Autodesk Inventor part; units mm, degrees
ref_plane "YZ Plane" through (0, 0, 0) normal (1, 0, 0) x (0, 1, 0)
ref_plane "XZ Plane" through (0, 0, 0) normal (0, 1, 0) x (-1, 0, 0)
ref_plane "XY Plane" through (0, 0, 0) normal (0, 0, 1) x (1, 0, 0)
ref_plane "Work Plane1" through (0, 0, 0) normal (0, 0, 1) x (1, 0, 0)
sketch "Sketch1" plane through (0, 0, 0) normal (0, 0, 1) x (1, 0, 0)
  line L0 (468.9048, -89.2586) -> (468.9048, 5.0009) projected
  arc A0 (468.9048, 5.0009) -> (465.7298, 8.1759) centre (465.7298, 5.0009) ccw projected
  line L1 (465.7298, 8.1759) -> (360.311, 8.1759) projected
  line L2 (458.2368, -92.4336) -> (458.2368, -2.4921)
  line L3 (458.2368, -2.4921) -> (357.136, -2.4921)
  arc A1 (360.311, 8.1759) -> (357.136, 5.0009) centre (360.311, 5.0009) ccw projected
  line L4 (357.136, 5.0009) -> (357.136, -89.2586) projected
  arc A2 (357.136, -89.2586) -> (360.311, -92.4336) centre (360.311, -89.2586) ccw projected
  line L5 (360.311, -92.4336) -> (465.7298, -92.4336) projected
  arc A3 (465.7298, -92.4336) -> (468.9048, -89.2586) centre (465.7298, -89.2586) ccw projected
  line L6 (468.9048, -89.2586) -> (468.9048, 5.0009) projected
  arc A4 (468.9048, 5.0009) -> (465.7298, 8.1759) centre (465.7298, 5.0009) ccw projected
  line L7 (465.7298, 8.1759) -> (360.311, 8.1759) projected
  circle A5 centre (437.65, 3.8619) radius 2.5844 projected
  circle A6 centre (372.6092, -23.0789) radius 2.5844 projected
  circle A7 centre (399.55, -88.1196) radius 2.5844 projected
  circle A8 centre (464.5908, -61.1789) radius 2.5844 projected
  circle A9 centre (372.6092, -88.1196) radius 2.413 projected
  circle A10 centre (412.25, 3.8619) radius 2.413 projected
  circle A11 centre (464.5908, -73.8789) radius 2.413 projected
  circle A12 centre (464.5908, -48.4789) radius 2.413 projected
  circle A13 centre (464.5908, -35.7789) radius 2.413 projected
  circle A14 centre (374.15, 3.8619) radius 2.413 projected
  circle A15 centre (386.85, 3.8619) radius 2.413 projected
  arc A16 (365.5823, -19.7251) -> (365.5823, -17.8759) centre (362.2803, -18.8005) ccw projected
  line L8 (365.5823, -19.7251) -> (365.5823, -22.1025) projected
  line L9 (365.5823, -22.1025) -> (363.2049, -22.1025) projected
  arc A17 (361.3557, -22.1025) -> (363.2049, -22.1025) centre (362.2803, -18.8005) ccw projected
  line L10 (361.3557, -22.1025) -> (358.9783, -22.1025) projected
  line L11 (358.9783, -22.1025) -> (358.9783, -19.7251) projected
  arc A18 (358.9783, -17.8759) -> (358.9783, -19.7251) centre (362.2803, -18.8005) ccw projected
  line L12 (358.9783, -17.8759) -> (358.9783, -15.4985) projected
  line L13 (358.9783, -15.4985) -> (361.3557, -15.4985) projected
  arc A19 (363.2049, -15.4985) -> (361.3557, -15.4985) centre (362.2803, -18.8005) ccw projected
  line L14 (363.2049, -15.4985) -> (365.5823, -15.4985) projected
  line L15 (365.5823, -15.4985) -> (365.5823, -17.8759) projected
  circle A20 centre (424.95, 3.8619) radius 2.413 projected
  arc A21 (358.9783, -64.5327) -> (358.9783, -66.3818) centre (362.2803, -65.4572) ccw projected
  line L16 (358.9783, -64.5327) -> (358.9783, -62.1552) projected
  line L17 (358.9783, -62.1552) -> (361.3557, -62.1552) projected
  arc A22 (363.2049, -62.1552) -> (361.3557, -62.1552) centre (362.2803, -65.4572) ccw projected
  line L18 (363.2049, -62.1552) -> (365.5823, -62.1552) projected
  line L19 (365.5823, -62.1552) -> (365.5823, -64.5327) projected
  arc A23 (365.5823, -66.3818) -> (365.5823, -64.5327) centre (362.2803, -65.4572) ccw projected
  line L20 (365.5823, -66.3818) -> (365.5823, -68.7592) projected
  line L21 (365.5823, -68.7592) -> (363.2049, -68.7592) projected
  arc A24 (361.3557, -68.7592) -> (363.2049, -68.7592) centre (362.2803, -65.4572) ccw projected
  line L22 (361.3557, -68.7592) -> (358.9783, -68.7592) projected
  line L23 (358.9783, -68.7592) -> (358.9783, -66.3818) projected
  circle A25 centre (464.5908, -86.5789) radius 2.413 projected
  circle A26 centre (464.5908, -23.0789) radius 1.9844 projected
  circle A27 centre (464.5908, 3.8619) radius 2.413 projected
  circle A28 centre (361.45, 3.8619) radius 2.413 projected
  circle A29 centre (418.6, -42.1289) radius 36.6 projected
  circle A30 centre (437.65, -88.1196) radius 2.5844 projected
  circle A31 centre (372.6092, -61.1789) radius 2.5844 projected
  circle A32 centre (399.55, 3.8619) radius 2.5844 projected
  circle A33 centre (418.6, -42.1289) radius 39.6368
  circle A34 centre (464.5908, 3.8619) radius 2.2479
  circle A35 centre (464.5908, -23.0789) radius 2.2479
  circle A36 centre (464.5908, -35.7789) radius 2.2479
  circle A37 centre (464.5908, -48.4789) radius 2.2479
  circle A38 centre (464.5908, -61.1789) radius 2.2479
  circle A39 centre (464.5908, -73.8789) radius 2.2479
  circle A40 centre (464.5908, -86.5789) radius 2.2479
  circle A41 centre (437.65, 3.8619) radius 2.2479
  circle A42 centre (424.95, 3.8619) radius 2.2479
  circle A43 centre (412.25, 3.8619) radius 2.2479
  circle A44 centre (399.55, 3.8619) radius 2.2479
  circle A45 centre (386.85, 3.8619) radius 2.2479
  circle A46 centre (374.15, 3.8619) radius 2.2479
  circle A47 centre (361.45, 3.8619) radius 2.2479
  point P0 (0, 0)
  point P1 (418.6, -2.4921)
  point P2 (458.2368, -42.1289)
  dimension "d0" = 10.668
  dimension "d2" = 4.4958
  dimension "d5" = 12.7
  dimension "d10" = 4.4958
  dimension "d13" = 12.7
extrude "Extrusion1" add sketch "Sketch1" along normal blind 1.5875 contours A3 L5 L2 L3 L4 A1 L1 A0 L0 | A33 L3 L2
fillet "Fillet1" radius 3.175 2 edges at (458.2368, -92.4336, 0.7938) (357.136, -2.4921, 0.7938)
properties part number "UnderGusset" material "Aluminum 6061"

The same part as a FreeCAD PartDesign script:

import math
import FreeCAD as App
import Part
import Sketcher
from FreeCAD import Vector
Q = App.Units.Quantity


def edges_at(feature, points):
    """Names of the edges that pass closest to the given points."""
    edges = feature.Shape.Edges
    near = lambda p: min(range(len(edges)), key=lambda i: edges[i].distToShape(Part.Vertex(*p))[0])
    return sorted({f"Edge{near(p) + 1}" for p in points})

doc = App.newDocument("Part")
body = doc.addObject("PartDesign::Body", "Body")

sketch1 = doc.addObject("Sketcher::SketchObject", "Sketch")
body.addObject(sketch1)
sketch1.AttachmentSupport = (doc.XY_Plane, [""])
sketch1.MapMode = "FlatFace"
sketch1.addGeometry(Part.ArcOfCircle(Part.Circle(Vector(465.7298, -89.2586, 0), Vector(0, 0, 1), 3.175), math.radians(-90), math.radians(0)), False)
sketch1.addGeometry(Part.LineSegment(Vector(468.9048, -89.2586, 0), Vector(468.9048, 5.0009, 0)), False)
sketch1.addGeometry(Part.ArcOfCircle(Part.Circle(Vector(465.7298, 5.0009, 0), Vector(0, 0, 1), 3.175), math.radians(0), math.radians(90)), False)
sketch1.addGeometry(Part.LineSegment(Vector(465.7298, 8.1759, 0), Vector(360.311, 8.1759, 0)), False)
sketch1.addGeometry(Part.ArcOfCircle(Part.Circle(Vector(360.311, 5.0009, 0), Vector(0, 0, 1), 3.175), math.radians(90), math.radians(180)), False)
sketch1.addGeometry(Part.LineSegment(Vector(357.136, 5.0009, 0), Vector(357.136, -2.4921, 0)), False)
sketch1.addGeometry(Part.LineSegment(Vector(357.136, -2.4921, 0), Vector(418.6, -2.4921, 0)), False)
sketch1.addGeometry(Part.ArcOfCircle(Part.Circle(Vector(418.6, -42.1289, 0), Vector(0, 0, 1), 39.6368), math.radians(0), math.radians(90)), False)
sketch1.addGeometry(Part.LineSegment(Vector(458.2368, -42.1289, 0), Vector(458.2368, -92.4336, 0)), False)
sketch1.addGeometry(Part.LineSegment(Vector(458.2368, -92.4336, 0), Vector(465.7298, -92.4336, 0)), False)
sketch1.addGeometry(Part.Circle(Vector(464.5908, -86.5789, 0), Vector(0, 0, 1), 2.413), False)
sketch1.addGeometry(Part.Circle(Vector(464.5908, -73.8789, 0), Vector(0, 0, 1), 2.413), False)
sketch1.addGeometry(Part.Circle(Vector(464.5908, -61.1789, 0), Vector(0, 0, 1), 2.5844), False)
sketch1.addGeometry(Part.Circle(Vector(464.5908, -48.4789, 0), Vector(0, 0, 1), 2.413), False)
sketch1.addGeometry(Part.Circle(Vector(361.45, 3.8619, 0), Vector(0, 0, 1), 2.413), False)
sketch1.addGeometry(Part.Circle(Vector(374.15, 3.8619, 0), Vector(0, 0, 1), 2.413), False)
sketch1.addGeometry(Part.Circle(Vector(386.85, 3.8619, 0), Vector(0, 0, 1), 2.413), False)
sketch1.addGeometry(Part.Circle(Vector(399.55, 3.8619, 0), Vector(0, 0, 1), 2.5844), False)
sketch1.addGeometry(Part.Circle(Vector(412.25, 3.8619, 0), Vector(0, 0, 1), 2.413), False)
sketch1.addGeometry(Part.Circle(Vector(464.5908, -35.7789, 0), Vector(0, 0, 1), 2.413), False)
sketch1.addGeometry(Part.Circle(Vector(464.5908, -23.0789, 0), Vector(0, 0, 1), 2.2479), False)
sketch1.addGeometry(Part.Circle(Vector(424.95, 3.8619, 0), Vector(0, 0, 1), 2.413), False)
sketch1.addGeometry(Part.Circle(Vector(437.65, 3.8619, 0), Vector(0, 0, 1), 2.5844), False)
sketch1.addGeometry(Part.Circle(Vector(464.5908, 3.8619, 0), Vector(0, 0, 1), 2.413), False)
sketch1.addConstraint(Sketcher.Constraint("Tangent", 0, 2, 1, 1))
sketch1.addConstraint(Sketcher.Constraint("Tangent", 1, 2, 2, 1))
sketch1.addConstraint(Sketcher.Constraint("Tangent", 2, 2, 3, 1))
sketch1.addConstraint(Sketcher.Constraint("Tangent", 3, 2, 4, 1))
sketch1.addConstraint(Sketcher.Constraint("Tangent", 4, 2, 5, 1))
sketch1.addConstraint(Sketcher.Constraint("Coincident", 5, 2, 6, 1))
sketch1.addConstraint(Sketcher.Constraint("Tangent", 6, 2, 7, 2))
sketch1.addConstraint(Sketcher.Constraint("Tangent", 7, 1, 8, 1))
sketch1.addConstraint(Sketcher.Constraint("Coincident", 8, 2, 9, 1))
sketch1.addConstraint(Sketcher.Constraint("Tangent", 9, 2, 0, 1))
sketch1.addConstraint(Sketcher.Constraint("Vertical", 1))
sketch1.addConstraint(Sketcher.Constraint("Horizontal", 3))
sketch1.addConstraint(Sketcher.Constraint("Vertical", 5))
sketch1.addConstraint(Sketcher.Constraint("Horizontal", 6))
sketch1.addConstraint(Sketcher.Constraint("Vertical", 8))
sketch1.addConstraint(Sketcher.Constraint("Horizontal", 9))
sketch1.addConstraint(Sketcher.Constraint("Equal", 0, 2))
sketch1.addConstraint(Sketcher.Constraint("Equal", 2, 4))
sketch1.addConstraint(Sketcher.Constraint("Equal", 10, 11))
sketch1.addConstraint(Sketcher.Constraint("Equal", 11, 13))
sketch1.addConstraint(Sketcher.Constraint("Equal", 13, 14))
sketch1.addConstraint(Sketcher.Constraint("Equal", 14, 15))
sketch1.addConstraint(Sketcher.Constraint("Equal", 15, 16))
sketch1.addConstraint(Sketcher.Constraint("Equal", 12, 17))
sketch1.addConstraint(Sketcher.Constraint("Equal", 16, 18))
sketch1.addConstraint(Sketcher.Constraint("Equal", 18, 19))
sketch1.addConstraint(Sketcher.Constraint("Equal", 19, 21))
sketch1.addConstraint(Sketcher.Constraint("Equal", 17, 22))
sketch1.addConstraint(Sketcher.Constraint("Equal", 21, 23))
sketch1.addConstraint(Sketcher.Constraint("Horizontal", 14, 3, 15, 3))
sketch1.addConstraint(Sketcher.Constraint("Horizontal", 15, 3, 16, 3))
sketch1.addConstraint(Sketcher.Constraint("Horizontal", 16, 3, 17, 3))
sketch1.addConstraint(Sketcher.Constraint("Horizontal", 17, 3, 18, 3))
sketch1.addConstraint(Sketcher.Constraint("Horizontal", 18, 3, 21, 3))
sketch1.addConstraint(Sketcher.Constraint("Horizontal", 21, 3, 22, 3))
sketch1.addConstraint(Sketcher.Constraint("Horizontal", 22, 3, 23, 3))
sketch1.addConstraint(Sketcher.Constraint("Vertical", 10, 3, 11, 3))
sketch1.addConstraint(Sketcher.Constraint("Vertical", 11, 3, 12, 3))
sketch1.addConstraint(Sketcher.Constraint("Vertical", 12, 3, 13, 3))
sketch1.addConstraint(Sketcher.Constraint("Vertical", 13, 3, 19, 3))
sketch1.addConstraint(Sketcher.Constraint("Vertical", 19, 3, 20, 3))
sketch1.addConstraint(Sketcher.Constraint("Vertical", 20, 3, 23, 3))
sketch1.addConstraint(Sketcher.Constraint("Equal", 9, 5))
sketch1.addConstraint(Sketcher.Constraint("Diameter", 20, Q("0.177 in")))
sketch1.addConstraint(Sketcher.Constraint("DistanceY", 10, 3, 12, 3, Q("1 in")))
sketch1.addConstraint(Sketcher.Constraint("DistanceY", 11, 3, 13, 3, Q("1 in")))
sketch1.addConstraint(Sketcher.Constraint("DistanceX", 14, 3, 16, 3, Q("1 in")))
sketch1.addConstraint(Sketcher.Constraint("DistanceX", 15, 3, 17, 3, Q("1 in")))
sketch1.addConstraint(Sketcher.Constraint("DistanceX", 16, 3, 18, 3, Q("1 in")))
sketch1.addConstraint(Sketcher.Constraint("DistanceY", 12, 3, 19, 3, Q("1 in")))
sketch1.addConstraint(Sketcher.Constraint("DistanceY", 13, 3, 20, 3, Q("1 in")))
sketch1.addConstraint(Sketcher.Constraint("DistanceX", 17, 3, 21, 3, Q("1 in")))
sketch1.addConstraint(Sketcher.Constraint("DistanceX", 18, 3, 22, 3, Q("1 in")))
sketch1.addConstraint(Sketcher.Constraint("DistanceY", 10, 3, 11, 3, Q("0.5 in")))
sketch1.addConstraint(Sketcher.Constraint("DistanceX", 14, 3, 15, 3, Q("0.5 in")))
sketch1.addConstraint(Sketcher.Constraint("Diameter", 10, Q("0.19 in")))
sketch1.addConstraint(Sketcher.Constraint("DistanceY", 5, 2, 3, 2, Q("0.42 in")))
sketch1.addConstraint(Sketcher.Constraint("Radius", 0, Q("0.125 in")))
sketch1.addConstraint(Sketcher.Constraint("Diameter", 12, Q("0.2035 in")))
sketch1.addConstraint(Sketcher.Constraint("Radius", 7, Q("1.5605 in")))
sketch1.addConstraint(Sketcher.Constraint("DistanceY", 1, 1, 1, 2, Q("3.711 in")))
sketch1.addConstraint(Sketcher.Constraint("DistanceY", 10, 3, 7, 3, Q("1.75 in")))
sketch1.addConstraint(Sketcher.Constraint("DistanceX", 14, 3, 7, 3, Q("2.25 in")))
sketch1.addConstraint(Sketcher.Constraint("DistanceX", 3, 2, 3, 1, Q("105.4188 mm")))
sketch1.addConstraint(Sketcher.Constraint("DistanceX", 4, 3, 10, 3, Q("4.1055 in")))
sketch1.addConstraint(Sketcher.Constraint("DistanceX", -1, 1, 0, 3, Q("465.7298 mm")))
sketch1.addConstraint(Sketcher.Constraint("DistanceY", 0, 3, -1, 1, Q("89.2586 mm")))
sketch1.addConstraint(Sketcher.Constraint("DistanceY", -1, 1, 14, 3, Q("3.862 mm")))
pad1 = doc.addObject("PartDesign::Pad", "Pad")
body.addObject(pad1)
pad1.Profile = sketch1
pad1.Length = Q("0.0625 in")
doc.recompute()

fillet = doc.addObject("PartDesign::Fillet", "Fillet")
body.addObject(fillet)
fillet.Base = (pad1, edges_at(pad1, [(458.237, -92.434, 0.794), (357.136, -2.492, 0.794)]))
fillet.Radius = Q("0.125 in")

doc.recompute()
